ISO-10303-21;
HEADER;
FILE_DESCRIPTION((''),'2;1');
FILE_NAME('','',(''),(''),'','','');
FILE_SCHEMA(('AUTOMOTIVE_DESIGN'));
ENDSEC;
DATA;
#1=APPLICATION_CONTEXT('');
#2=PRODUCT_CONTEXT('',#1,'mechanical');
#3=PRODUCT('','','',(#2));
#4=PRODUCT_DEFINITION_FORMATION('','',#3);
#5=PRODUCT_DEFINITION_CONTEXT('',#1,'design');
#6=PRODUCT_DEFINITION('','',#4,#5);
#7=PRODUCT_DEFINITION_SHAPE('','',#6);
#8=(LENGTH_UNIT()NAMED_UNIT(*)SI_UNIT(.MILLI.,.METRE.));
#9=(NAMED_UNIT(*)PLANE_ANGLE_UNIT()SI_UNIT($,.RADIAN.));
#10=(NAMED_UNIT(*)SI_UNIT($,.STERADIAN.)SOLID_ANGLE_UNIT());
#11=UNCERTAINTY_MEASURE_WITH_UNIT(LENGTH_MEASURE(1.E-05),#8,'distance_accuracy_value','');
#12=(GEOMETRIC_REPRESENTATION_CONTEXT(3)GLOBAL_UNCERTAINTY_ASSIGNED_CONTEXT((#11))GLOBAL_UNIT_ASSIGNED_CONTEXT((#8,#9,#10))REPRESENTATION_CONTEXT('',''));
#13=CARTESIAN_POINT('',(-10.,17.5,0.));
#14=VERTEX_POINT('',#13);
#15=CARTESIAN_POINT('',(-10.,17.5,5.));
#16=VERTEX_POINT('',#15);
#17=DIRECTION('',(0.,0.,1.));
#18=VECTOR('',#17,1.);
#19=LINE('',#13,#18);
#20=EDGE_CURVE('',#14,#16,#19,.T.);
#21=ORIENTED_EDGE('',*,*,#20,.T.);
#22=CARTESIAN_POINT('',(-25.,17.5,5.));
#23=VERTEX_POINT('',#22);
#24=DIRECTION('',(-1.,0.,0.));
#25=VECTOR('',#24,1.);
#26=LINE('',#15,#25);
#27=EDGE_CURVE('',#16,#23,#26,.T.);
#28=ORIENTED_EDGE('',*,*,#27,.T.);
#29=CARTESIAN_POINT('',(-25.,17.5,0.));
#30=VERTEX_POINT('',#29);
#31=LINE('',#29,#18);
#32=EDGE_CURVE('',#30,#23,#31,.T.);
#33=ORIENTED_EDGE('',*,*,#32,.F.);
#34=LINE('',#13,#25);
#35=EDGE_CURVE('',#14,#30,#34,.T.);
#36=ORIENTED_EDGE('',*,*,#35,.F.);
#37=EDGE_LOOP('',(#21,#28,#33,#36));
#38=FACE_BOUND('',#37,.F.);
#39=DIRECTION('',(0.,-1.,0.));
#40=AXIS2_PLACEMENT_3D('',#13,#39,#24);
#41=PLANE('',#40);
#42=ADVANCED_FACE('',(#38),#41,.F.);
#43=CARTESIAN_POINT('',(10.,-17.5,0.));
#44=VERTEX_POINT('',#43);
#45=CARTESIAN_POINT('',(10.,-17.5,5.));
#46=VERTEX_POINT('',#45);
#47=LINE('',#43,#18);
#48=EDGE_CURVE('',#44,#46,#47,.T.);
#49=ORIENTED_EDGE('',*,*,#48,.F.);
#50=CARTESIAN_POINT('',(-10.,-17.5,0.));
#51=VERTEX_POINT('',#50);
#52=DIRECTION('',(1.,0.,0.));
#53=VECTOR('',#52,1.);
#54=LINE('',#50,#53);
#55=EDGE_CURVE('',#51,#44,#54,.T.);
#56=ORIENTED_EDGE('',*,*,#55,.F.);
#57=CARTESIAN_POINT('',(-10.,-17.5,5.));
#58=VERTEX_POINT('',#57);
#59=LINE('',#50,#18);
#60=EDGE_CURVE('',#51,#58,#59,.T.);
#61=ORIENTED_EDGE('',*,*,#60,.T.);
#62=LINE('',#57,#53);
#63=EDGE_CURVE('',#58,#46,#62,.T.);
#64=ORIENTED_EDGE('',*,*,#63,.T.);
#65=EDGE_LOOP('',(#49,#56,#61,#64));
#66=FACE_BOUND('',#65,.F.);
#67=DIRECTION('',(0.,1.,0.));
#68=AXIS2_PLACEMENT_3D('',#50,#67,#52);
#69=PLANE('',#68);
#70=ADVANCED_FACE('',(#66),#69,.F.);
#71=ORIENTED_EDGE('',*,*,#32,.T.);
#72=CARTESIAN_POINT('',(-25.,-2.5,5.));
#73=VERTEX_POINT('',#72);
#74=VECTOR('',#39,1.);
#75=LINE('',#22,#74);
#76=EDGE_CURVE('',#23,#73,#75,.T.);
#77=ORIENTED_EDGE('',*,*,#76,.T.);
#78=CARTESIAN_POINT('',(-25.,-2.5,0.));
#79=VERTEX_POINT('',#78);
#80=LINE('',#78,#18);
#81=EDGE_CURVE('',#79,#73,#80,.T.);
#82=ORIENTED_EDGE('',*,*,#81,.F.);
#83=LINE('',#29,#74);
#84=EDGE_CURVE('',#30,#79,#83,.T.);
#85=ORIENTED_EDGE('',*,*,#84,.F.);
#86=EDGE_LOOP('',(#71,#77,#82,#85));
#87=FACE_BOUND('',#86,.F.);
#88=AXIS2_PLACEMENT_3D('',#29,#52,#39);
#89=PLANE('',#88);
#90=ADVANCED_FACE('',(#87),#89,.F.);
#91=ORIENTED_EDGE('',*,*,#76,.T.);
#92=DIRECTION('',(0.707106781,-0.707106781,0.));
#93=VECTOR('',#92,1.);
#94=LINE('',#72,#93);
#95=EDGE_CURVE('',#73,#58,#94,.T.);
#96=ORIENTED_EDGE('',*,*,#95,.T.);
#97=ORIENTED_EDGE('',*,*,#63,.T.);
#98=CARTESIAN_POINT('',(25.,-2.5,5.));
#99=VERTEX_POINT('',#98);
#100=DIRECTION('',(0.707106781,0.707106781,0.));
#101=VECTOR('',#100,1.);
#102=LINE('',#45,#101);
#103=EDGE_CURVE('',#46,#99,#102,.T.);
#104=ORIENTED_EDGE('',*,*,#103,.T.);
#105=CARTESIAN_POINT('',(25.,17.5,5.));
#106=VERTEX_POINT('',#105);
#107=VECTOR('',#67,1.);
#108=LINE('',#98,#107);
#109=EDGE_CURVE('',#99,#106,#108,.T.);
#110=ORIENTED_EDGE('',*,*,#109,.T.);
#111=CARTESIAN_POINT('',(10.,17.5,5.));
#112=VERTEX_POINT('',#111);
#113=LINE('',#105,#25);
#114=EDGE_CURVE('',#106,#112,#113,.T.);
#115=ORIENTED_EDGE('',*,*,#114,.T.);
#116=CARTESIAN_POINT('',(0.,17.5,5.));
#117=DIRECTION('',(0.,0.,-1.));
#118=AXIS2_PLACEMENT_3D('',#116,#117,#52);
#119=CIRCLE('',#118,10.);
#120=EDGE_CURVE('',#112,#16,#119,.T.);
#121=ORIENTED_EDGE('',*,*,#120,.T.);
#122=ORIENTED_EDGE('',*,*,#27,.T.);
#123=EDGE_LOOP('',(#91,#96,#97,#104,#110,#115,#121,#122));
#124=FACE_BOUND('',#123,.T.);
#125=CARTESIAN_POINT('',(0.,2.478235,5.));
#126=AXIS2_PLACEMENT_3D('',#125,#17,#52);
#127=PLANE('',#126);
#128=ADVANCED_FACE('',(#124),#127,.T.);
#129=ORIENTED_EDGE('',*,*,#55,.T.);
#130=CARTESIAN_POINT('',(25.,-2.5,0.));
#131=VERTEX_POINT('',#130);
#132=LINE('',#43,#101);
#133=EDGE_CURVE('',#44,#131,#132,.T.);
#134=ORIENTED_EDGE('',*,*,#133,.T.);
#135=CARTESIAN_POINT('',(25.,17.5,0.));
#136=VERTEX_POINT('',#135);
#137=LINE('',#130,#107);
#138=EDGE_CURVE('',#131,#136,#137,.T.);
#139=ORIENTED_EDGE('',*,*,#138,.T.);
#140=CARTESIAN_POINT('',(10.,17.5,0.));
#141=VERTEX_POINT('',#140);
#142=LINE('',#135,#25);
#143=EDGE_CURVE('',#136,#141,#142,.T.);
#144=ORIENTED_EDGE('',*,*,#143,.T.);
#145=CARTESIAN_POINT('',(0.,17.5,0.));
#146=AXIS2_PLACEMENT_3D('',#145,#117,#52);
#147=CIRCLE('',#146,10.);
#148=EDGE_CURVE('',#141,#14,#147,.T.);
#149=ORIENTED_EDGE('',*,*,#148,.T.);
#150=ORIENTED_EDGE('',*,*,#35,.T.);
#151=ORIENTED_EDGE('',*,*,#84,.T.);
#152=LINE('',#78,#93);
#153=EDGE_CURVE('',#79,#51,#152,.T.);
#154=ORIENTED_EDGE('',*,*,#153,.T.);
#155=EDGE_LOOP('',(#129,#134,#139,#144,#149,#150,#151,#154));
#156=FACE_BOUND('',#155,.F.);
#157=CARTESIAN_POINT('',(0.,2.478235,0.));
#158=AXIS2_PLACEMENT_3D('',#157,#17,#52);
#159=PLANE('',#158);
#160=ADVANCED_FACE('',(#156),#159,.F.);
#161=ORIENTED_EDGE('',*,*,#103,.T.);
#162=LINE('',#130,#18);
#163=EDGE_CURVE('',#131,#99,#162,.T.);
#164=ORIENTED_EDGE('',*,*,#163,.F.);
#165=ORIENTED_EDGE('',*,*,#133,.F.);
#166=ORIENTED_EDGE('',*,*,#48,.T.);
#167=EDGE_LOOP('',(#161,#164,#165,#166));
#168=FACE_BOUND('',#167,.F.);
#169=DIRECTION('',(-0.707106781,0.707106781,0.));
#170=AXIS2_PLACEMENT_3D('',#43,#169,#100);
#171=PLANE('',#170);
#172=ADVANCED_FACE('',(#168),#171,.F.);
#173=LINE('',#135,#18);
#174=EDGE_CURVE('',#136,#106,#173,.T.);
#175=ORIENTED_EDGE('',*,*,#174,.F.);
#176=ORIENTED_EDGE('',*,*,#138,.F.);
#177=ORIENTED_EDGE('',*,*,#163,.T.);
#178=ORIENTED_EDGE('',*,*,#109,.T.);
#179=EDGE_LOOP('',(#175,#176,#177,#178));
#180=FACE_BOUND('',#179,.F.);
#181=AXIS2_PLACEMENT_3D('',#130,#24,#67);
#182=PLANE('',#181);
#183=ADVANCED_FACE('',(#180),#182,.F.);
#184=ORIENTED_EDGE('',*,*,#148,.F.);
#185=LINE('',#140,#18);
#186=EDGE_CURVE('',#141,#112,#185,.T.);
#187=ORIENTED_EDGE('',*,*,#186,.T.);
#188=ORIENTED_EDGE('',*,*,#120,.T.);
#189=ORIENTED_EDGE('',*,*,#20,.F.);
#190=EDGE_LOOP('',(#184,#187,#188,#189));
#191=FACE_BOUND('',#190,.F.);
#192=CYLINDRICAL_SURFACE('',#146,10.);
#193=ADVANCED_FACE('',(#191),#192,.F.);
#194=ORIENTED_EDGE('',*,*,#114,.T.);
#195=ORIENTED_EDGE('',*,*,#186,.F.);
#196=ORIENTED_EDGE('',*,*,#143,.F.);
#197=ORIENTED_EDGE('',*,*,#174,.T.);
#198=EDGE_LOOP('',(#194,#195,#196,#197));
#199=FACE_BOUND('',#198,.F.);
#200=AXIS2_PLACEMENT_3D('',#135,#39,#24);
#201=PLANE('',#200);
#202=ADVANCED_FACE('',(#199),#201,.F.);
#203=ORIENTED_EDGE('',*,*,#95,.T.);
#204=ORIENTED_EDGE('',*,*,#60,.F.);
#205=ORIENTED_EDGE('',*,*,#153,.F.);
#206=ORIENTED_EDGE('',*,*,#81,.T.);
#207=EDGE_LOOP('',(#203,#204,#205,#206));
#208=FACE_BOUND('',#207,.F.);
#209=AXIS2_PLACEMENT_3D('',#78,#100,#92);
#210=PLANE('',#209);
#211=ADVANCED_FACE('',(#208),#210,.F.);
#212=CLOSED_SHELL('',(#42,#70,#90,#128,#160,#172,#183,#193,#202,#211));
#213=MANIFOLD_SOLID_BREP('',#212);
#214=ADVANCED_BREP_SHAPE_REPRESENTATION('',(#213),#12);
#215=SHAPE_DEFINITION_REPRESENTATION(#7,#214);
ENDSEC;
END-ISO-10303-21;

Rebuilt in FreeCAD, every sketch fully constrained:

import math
import FreeCAD as App
import Part
import Sketcher
Q = App.Units.Quantity

doc = App.newDocument("Part")
body = doc.addObject("PartDesign::Body", "Body")

sketch1 = doc.addObject("Sketcher::SketchObject", "Sketch")
body.addObject(sketch1)
sketch1.AttachmentSupport = (doc.XY_Plane, [""])
sketch1.MapMode = "FlatFace"
sketch1.addGeometry(Part.LineSegment(App.Vector(-10, -17.5, 0), App.Vector(10, -17.5, 0)), False)
sketch1.addGeometry(Part.LineSegment(App.Vector(10, -17.5, 0), App.Vector(25, -2.5, 0)), False)
sketch1.addGeometry(Part.LineSegment(App.Vector(25, -2.5, 0), App.Vector(25, 17.5, 0)), False)
sketch1.addGeometry(Part.LineSegment(App.Vector(25, 17.5, 0), App.Vector(10, 17.5, 0)), False)
sketch1.addGeometry(Part.ArcOfCircle(Part.Circle(App.Vector(0, 17.5, 0), App.Vector(0, 0, 1), 10), math.radians(180), math.radians(360)), False)
sketch1.addGeometry(Part.LineSegment(App.Vector(-10, 17.5, 0), App.Vector(-25, 17.5, 0)), False)
sketch1.addGeometry(Part.LineSegment(App.Vector(-25, 17.5, 0), App.Vector(-25, -2.5, 0)), False)
sketch1.addGeometry(Part.LineSegment(App.Vector(-25, -2.5, 0), App.Vector(-10, -17.5, 0)), False)
sketch1.addConstraint(Sketcher.Constraint("Coincident", 0, 2, 1, 1))
sketch1.addConstraint(Sketcher.Constraint("Coincident", 1, 2, 2, 1))
sketch1.addConstraint(Sketcher.Constraint("Coincident", 2, 2, 3, 1))
sketch1.addConstraint(Sketcher.Constraint("Coincident", 3, 2, 4, 2))
sketch1.addConstraint(Sketcher.Constraint("Coincident", 4, 1, 5, 1))
sketch1.addConstraint(Sketcher.Constraint("Coincident", 5, 2, 6, 1))
sketch1.addConstraint(Sketcher.Constraint("Coincident", 6, 2, 7, 1))
sketch1.addConstraint(Sketcher.Constraint("Coincident", 7, 2, 0, 1))
sketch1.addConstraint(Sketcher.Constraint("Horizontal", 0))
sketch1.addConstraint(Sketcher.Constraint("Vertical", 2))
sketch1.addConstraint(Sketcher.Constraint("Horizontal", 3))
sketch1.addConstraint(Sketcher.Constraint("Horizontal", 5))
sketch1.addConstraint(Sketcher.Constraint("Vertical", 6))
sketch1.addConstraint(Sketcher.Constraint("Symmetric", 0, 2, 4, 1, -1, 1))
sketch1.addConstraint(Sketcher.Constraint("Symmetric", 3, 2, 7, 2, -1, 1))
sketch1.addConstraint(Sketcher.Constraint("Symmetric", 1, 2, 6, 2, -2))
sketch1.addConstraint(Sketcher.Constraint("PointOnObject", 4, 3, -2))
sketch1.addConstraint(Sketcher.Constraint("Perpendicular", 1, 7))
sketch1.addConstraint(Sketcher.Constraint("Horizontal", 4, 3, 2, 2))
sketch1.addConstraint(Sketcher.Constraint("Equal", 0, 2))
sketch1.addConstraint(Sketcher.Constraint("Radius", 4, Q("10 mm")))
sketch1.addConstraint(Sketcher.Constraint("DistanceX", 3, 2, 3, 1, Q("15 mm")))
pad1 = doc.addObject("PartDesign::Pad", "Pad")
body.addObject(pad1)
pad1.Profile = sketch1
pad1.Length = 5

doc.recompute()
